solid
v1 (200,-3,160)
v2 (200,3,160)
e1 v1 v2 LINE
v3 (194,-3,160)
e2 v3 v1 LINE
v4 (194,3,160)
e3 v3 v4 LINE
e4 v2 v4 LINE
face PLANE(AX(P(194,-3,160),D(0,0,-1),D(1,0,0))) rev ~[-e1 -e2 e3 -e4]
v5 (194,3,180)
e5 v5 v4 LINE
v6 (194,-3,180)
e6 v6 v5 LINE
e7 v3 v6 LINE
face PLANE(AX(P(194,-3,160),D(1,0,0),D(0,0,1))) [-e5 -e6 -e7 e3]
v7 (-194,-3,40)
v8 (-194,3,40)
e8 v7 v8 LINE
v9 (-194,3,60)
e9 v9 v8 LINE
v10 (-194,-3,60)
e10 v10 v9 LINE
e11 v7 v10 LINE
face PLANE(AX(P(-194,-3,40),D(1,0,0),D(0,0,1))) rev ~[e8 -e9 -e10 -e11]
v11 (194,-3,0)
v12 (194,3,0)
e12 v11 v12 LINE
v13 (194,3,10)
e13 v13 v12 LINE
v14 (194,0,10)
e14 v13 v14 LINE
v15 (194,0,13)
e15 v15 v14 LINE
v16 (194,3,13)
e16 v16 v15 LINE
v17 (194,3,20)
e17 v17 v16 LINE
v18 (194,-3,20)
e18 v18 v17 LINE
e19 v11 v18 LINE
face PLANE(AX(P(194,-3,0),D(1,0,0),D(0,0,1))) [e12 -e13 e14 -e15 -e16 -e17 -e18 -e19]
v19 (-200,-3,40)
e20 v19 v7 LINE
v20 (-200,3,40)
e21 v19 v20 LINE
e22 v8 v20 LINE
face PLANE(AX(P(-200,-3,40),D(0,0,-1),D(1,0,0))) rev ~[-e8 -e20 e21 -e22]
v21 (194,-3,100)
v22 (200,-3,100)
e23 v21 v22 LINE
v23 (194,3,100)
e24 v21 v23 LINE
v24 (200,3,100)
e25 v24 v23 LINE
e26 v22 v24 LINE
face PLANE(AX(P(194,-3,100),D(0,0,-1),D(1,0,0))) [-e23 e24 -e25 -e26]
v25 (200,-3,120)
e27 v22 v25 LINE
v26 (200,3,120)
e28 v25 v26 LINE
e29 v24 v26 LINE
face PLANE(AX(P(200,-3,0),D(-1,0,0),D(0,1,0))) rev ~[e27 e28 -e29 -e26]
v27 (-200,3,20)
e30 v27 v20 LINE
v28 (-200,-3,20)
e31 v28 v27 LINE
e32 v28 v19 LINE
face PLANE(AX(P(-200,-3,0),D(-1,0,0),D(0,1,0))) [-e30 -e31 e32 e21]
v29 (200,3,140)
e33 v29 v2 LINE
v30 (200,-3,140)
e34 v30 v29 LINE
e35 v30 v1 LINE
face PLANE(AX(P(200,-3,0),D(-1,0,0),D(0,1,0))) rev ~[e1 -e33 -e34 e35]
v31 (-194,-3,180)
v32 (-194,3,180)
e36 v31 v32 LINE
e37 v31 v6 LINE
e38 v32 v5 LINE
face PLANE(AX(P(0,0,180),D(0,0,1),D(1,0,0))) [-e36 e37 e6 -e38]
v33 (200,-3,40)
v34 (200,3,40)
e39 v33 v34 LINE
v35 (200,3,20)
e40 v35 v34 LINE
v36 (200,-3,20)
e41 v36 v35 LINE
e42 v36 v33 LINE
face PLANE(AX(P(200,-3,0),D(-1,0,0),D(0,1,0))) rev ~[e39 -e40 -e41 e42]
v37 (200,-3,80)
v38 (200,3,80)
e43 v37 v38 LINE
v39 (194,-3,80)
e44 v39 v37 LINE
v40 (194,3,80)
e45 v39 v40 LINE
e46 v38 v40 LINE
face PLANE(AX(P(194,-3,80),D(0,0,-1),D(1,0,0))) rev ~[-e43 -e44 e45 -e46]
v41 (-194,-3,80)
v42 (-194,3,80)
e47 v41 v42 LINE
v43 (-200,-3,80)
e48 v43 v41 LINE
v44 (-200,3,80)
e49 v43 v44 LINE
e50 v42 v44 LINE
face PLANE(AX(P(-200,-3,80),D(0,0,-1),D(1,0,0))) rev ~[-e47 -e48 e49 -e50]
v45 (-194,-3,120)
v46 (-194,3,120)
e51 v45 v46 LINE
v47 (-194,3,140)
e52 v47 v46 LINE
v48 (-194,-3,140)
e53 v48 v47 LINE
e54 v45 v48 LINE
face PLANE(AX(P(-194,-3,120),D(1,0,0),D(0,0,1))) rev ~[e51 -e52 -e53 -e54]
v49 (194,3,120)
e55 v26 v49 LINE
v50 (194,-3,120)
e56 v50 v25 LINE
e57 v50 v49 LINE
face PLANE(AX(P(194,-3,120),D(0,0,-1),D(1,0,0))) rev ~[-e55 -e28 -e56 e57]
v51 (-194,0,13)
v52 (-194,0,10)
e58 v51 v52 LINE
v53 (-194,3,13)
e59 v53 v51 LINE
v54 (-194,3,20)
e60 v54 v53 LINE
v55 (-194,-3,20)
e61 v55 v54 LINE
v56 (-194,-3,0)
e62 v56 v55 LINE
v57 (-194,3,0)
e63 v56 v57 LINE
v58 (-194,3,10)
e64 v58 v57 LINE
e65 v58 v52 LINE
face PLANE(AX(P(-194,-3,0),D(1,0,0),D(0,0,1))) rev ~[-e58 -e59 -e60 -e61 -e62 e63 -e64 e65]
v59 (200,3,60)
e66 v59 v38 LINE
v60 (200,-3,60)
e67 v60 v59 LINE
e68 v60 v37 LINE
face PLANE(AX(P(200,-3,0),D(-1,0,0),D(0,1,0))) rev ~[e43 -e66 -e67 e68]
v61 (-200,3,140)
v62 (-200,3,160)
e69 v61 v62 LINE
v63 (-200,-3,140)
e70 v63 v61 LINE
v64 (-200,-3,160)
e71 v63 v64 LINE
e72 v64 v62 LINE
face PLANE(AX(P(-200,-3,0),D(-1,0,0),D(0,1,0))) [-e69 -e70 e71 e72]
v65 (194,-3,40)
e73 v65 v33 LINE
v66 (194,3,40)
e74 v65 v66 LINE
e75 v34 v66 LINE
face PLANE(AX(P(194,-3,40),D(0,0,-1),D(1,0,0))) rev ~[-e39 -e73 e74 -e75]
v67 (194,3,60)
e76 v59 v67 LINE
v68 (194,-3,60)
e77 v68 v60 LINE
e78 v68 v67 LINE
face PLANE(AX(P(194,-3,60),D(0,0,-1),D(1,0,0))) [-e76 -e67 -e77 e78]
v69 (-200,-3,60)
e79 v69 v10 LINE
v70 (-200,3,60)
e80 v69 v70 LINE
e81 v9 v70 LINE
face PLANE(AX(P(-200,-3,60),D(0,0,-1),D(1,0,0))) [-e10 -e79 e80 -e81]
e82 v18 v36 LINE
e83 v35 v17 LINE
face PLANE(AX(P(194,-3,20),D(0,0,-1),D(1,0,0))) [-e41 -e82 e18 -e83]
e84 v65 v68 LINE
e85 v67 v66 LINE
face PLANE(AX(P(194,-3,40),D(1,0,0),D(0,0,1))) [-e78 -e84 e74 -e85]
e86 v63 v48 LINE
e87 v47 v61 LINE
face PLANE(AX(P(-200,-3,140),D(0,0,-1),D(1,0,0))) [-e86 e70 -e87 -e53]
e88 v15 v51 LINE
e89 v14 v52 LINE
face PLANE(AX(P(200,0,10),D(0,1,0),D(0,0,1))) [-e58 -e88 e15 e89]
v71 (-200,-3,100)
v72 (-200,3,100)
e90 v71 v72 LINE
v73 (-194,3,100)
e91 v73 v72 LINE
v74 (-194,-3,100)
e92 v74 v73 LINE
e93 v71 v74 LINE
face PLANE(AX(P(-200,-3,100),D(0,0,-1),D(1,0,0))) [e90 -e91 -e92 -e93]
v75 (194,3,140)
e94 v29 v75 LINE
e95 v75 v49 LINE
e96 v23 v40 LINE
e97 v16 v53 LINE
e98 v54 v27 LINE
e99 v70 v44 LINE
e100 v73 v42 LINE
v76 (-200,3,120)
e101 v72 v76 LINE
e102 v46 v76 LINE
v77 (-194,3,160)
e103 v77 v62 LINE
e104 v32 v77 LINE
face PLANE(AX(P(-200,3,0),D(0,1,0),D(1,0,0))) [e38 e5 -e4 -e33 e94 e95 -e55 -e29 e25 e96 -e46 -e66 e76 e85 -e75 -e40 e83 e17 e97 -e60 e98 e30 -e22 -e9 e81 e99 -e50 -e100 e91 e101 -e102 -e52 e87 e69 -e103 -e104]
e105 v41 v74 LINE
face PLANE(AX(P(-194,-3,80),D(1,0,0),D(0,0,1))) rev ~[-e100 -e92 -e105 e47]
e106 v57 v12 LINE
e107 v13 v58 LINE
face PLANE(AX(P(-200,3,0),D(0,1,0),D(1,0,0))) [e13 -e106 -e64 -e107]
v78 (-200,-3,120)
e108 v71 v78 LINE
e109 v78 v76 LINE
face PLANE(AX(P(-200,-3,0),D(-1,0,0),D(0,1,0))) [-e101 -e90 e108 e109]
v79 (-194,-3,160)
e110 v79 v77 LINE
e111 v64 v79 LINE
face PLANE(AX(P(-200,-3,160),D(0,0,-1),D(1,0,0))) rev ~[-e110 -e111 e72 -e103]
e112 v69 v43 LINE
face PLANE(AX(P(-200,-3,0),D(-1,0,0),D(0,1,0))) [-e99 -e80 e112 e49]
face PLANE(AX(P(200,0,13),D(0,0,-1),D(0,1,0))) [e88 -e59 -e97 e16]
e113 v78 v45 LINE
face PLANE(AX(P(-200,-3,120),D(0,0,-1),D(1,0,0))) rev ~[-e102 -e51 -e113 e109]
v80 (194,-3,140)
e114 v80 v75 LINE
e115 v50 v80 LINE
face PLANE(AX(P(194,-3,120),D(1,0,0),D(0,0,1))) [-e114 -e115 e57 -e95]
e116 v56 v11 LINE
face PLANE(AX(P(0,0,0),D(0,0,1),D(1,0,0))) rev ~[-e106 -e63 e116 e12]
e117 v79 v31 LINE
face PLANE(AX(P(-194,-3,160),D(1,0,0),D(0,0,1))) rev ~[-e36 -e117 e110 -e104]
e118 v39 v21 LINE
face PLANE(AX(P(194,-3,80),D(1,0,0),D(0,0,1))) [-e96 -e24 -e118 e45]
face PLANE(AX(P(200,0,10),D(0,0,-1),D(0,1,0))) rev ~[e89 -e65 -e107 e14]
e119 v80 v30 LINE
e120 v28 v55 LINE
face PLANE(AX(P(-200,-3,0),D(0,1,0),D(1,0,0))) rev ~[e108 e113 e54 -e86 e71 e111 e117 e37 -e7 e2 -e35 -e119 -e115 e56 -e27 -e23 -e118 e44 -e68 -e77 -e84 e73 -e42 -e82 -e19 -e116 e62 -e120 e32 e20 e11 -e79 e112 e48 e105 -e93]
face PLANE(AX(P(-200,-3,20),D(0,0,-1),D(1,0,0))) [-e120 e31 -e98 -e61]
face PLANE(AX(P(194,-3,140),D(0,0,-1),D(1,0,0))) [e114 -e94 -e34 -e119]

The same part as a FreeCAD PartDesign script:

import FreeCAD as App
import Part
import Sketcher

V = App.Vector

doc = App.newDocument("Part")
params = doc.addObject("Spreadsheet::Sheet", "Params")
for row, (alias, value) in enumerate([
    ("sketch1_width", "400 mm"),
    ("sketch1_height", "6 mm"),
    ("pad1_length", "180 mm"),
    ("sketch2_width", "3 mm"),
    ("sketch3_width", "6 mm"),
    ("sketch3_height", "20 mm"),
], start=1):
    params.set(f"A{row}", alias)
    params.set(f"B{row}", "=" + value)
    params.setAlias(f"B{row}", alias)

body = doc.addObject("PartDesign::Body", "Body")

# Sketch on XY plane
sketch1 = doc.addObject("Sketcher::SketchObject", "Sketch")
body.addObject(sketch1)
sketch1.AttachmentSupport = (doc.XY_Plane, [""])
sketch1.MapMode = "FlatFace"
sketch1.addGeometry(Part.LineSegment(V(-200, 3, 0), V(-200, -3, 0)), False)
sketch1.addGeometry(Part.LineSegment(V(-200, -3, 0), V(200, -3, 0)), False)
sketch1.addGeometry(Part.LineSegment(V(200, -3, 0), V(200, 3, 0)), False)
sketch1.addGeometry(Part.LineSegment(V(200, 3, 0), V(-200, 3, 0)), False)
sketch1.addConstraint(Sketcher.Constraint("Coincident", 0, 2, 1, 1))
sketch1.addConstraint(Sketcher.Constraint("Coincident", 1, 2, 2, 1))
sketch1.addConstraint(Sketcher.Constraint("Coincident", 2, 2, 3, 1))
sketch1.addConstraint(Sketcher.Constraint("Coincident", 3, 2, 0, 1))
sketch1.addConstraint(Sketcher.Constraint("Vertical", 0))
sketch1.addConstraint(Sketcher.Constraint("Horizontal", 1))
sketch1.addConstraint(Sketcher.Constraint("Vertical", 2))
sketch1.addConstraint(Sketcher.Constraint("Horizontal", 3))
sketch1.addConstraint(Sketcher.Constraint("Symmetric", 0, 2, 2, 2, -1, 1))
sketch1.addConstraint(Sketcher.Constraint("DistanceX", 1, 1, 1, 2, 400.0))
sketch1.addConstraint(Sketcher.Constraint("DistanceY", 0, 2, 0, 1, 6.0))
sketch1.setExpression("Constraints[9]", "Params.sketch1_width")
sketch1.setExpression("Constraints[10]", "Params.sketch1_height")
pad1 = doc.addObject("PartDesign::Pad", "Pad")
body.addObject(pad1)
pad1.Profile = sketch1
pad1.setExpression("Length", "Params.pad1_length")

# Sketch on YZ plane
sketch2 = doc.addObject("Sketcher::SketchObject", "Sketch001")
body.addObject(sketch2)
sketch2.AttachmentSupport = (doc.YZ_Plane, [""])
sketch2.MapMode = "FlatFace"
sketch2.AttachmentOffset = App.Placement(V(0, 0, 200), App.Rotation())
sketch2.addGeometry(Part.LineSegment(V(0, 13, 0), V(0, 10, 0)), False)
sketch2.addGeometry(Part.LineSegment(V(0, 10, 0), V(3, 10, 0)), False)
sketch2.addGeometry(Part.LineSegment(V(3, 10, 0), V(3, 13, 0)), False)
sketch2.addGeometry(Part.LineSegment(V(3, 13, 0), V(0, 13, 0)), False)
sketch2.addConstraint(Sketcher.Constraint("Coincident", 0, 2, 1, 1))
sketch2.addConstraint(Sketcher.Constraint("Coincident", 1, 2, 2, 1))
sketch2.addConstraint(Sketcher.Constraint("Coincident", 2, 2, 3, 1))
sketch2.addConstraint(Sketcher.Constraint("Coincident", 3, 2, 0, 1))
sketch2.addConstraint(Sketcher.Constraint("Vertical", 0))
sketch2.addConstraint(Sketcher.Constraint("Horizontal", 1))
sketch2.addConstraint(Sketcher.Constraint("Vertical", 2))
sketch2.addConstraint(Sketcher.Constraint("Horizontal", 3))
sketch2.addConstraint(Sketcher.Constraint("PointOnObject", 0, 2, -2))
sketch2.addConstraint(Sketcher.Constraint("Equal", 3, 0))
sketch2.addConstraint(Sketcher.Constraint("DistanceX", 1, 1, 1, 2, 3.0))
sketch2.addConstraint(Sketcher.Constraint("DistanceY", -1, 1, 0, 2, 10.0))
sketch2.setExpression("Constraints[10]", "Params.sketch2_width")
pocket1 = doc.addObject("PartDesign::Pocket", "Pocket")
body.addObject(pocket1)
pocket1.Profile = sketch2
pocket1.Type = "ThroughAll"

# Sketch on XZ plane
sketch3 = doc.addObject("Sketcher::SketchObject", "Sketch002")
body.addObject(sketch3)
sketch3.AttachmentSupport = (doc.XZ_Plane, [""])
sketch3.MapMode = "FlatFace"
sketch3.AttachmentOffset = App.Placement(V(0, 0, 3), App.Rotation())
sketch3.addGeometry(Part.LineSegment(V(-200, 180, 0), V(-200, 160, 0)), False)
sketch3.addGeometry(Part.LineSegment(V(-200, 160, 0), V(-194, 160, 0)), False)
sketch3.addGeometry(Part.LineSegment(V(-194, 160, 0), V(-194, 180, 0)), False)
sketch3.addGeometry(Part.LineSegment(V(-194, 180, 0), V(-200, 180, 0)), False)
sketch3.addGeometry(Part.LineSegment(V(-200, 140, 0), V(-200, 120, 0)), False)
sketch3.addGeometry(Part.LineSegment(V(-200, 120, 0), V(-194, 120, 0)), False)
sketch3.addGeometry(Part.LineSegment(V(-194, 120, 0), V(-194, 140, 0)), False)
sketch3.addGeometry(Part.LineSegment(V(-194, 140, 0), V(-200, 140, 0)), False)
sketch3.addGeometry(Part.LineSegment(V(-200, 100, 0), V(-200, 80, 0)), False)
sketch3.addGeometry(Part.LineSegment(V(-200, 80, 0), V(-194, 80, 0)), False)
sketch3.addGeometry(Part.LineSegment(V(-194, 80, 0), V(-194, 100, 0)), False)
sketch3.addGeometry(Part.LineSegment(V(-194, 100, 0), V(-200, 100, 0)), False)
sketch3.addGeometry(Part.LineSegment(V(-200, 60, 0), V(-200, 40, 0)), False)
sketch3.addGeometry(Part.LineSegment(V(-200, 40, 0), V(-194, 40, 0)), False)
sketch3.addGeometry(Part.LineSegment(V(-194, 40, 0), V(-194, 60, 0)), False)
sketch3.addGeometry(Part.LineSegment(V(-194, 60, 0), V(-200, 60, 0)), False)
sketch3.addGeometry(Part.LineSegment(V(-200, 20, 0), V(-200, 0, 0)), False)
sketch3.addGeometry(Part.LineSegment(V(-200, 0, 0), V(-194, 0, 0)), False)
sketch3.addGeometry(Part.LineSegment(V(-194, 0, 0), V(-194, 20, 0)), False)
sketch3.addGeometry(Part.LineSegment(V(-194, 20, 0), V(-200, 20, 0)), False)
sketch3.addGeometry(Part.LineSegment(V(194, 20, 0), V(194, 0, 0)), False)
sketch3.addGeometry(Part.LineSegment(V(194, 0, 0), V(200, 0, 0)), False)
sketch3.addGeometry(Part.LineSegment(V(200, 0, 0), V(200, 20, 0)), False)
sketch3.addGeometry(Part.LineSegment(V(200, 20, 0), V(194, 20, 0)), False)
sketch3.addGeometry(Part.LineSegment(V(194, 60, 0), V(194, 40, 0)), False)
sketch3.addGeometry(Part.LineSegment(V(194, 40, 0), V(200, 40, 0)), False)
sketch3.addGeometry(Part.LineSegment(V(200, 40, 0), V(200, 60, 0)), False)
sketch3.addGeometry(Part.LineSegment(V(200, 60, 0), V(194, 60, 0)), False)
sketch3.addGeometry(Part.LineSegment(V(194, 100, 0), V(194, 80, 0)), False)
sketch3.addGeometry(Part.LineSegment(V(194, 80, 0), V(200, 80, 0)), False)
sketch3.addGeometry(Part.LineSegment(V(200, 80, 0), V(200, 100, 0)), False)
sketch3.addGeometry(Part.LineSegment(V(200, 100, 0), V(194, 100, 0)), False)
sketch3.addGeometry(Part.LineSegment(V(194, 140, 0), V(194, 120, 0)), False)
sketch3.addGeometry(Part.LineSegment(V(194, 120, 0), V(200, 120, 0)), False)
sketch3.addGeometry(Part.LineSegment(V(200, 120, 0), V(200, 140, 0)), False)
sketch3.addGeometry(Part.LineSegment(V(200, 140, 0), V(194, 140, 0)), False)
sketch3.addGeometry(Part.LineSegment(V(194, 180, 0), V(194, 160, 0)), False)
sketch3.addGeometry(Part.LineSegment(V(194, 160, 0), V(200, 160, 0)), False)
sketch3.addGeometry(Part.LineSegment(V(200, 160, 0), V(200, 180, 0)), False)
sketch3.addGeometry(Part.LineSegment(V(200, 180, 0), V(194, 180, 0)), False)
sketch3.addConstraint(Sketcher.Constraint("Coincident", 0, 2, 1, 1))
sketch3.addConstraint(Sketcher.Constraint("Coincident", 1, 2, 2, 1))
sketch3.addConstraint(Sketcher.Constraint("Coincident", 2, 2, 3, 1))
sketch3.addConstraint(Sketcher.Constraint("Coincident", 3, 2, 0, 1))
sketch3.addConstraint(Sketcher.Constraint("Coincident", 4, 2, 5, 1))
sketch3.addConstraint(Sketcher.Constraint("Coincident", 5, 2, 6, 1))
sketch3.addConstraint(Sketcher.Constraint("Coincident", 6, 2, 7, 1))
sketch3.addConstraint(Sketcher.Constraint("Coincident", 7, 2, 4, 1))
sketch3.addConstraint(Sketcher.Constraint("Coincident", 8, 2, 9, 1))
sketch3.addConstraint(Sketcher.Constraint("Coincident", 9, 2, 10, 1))
sketch3.addConstraint(Sketcher.Constraint("Coincident", 10, 2, 11, 1))
sketch3.addConstraint(Sketcher.Constraint("Coincident", 11, 2, 8, 1))
sketch3.addConstraint(Sketcher.Constraint("Coincident", 12, 2, 13, 1))
sketch3.addConstraint(Sketcher.Constraint("Coincident", 13, 2, 14, 1))
sketch3.addConstraint(Sketcher.Constraint("Coincident", 14, 2, 15, 1))
sketch3.addConstraint(Sketcher.Constraint("Coincident", 15, 2, 12, 1))
sketch3.addConstraint(Sketcher.Constraint("Coincident", 16, 2, 17, 1))
sketch3.addConstraint(Sketcher.Constraint("Coincident", 17, 2, 18, 1))
sketch3.addConstraint(Sketcher.Constraint("Coincident", 18, 2, 19, 1))
sketch3.addConstraint(Sketcher.Constraint("Coincident", 19, 2, 16, 1))
sketch3.addConstraint(Sketcher.Constraint("Coincident", 20, 2, 21, 1))
sketch3.addConstraint(Sketcher.Constraint("Coincident", 21, 2, 22, 1))
sketch3.addConstraint(Sketcher.Constraint("Coincident", 22, 2, 23, 1))
sketch3.addConstraint(Sketcher.Constraint("Coincident", 23, 2, 20, 1))
sketch3.addConstraint(Sketcher.Constraint("Coincident", 24, 2, 25, 1))
sketch3.addConstraint(Sketcher.Constraint("Coincident", 25, 2, 26, 1))
sketch3.addConstraint(Sketcher.Constraint("Coincident", 26, 2, 27, 1))
sketch3.addConstraint(Sketcher.Constraint("Coincident", 27, 2, 24, 1))
sketch3.addConstraint(Sketcher.Constraint("Coincident", 28, 2, 29, 1))
sketch3.addConstraint(Sketcher.Constraint("Coincident", 29, 2, 30, 1))
sketch3.addConstraint(Sketcher.Constraint("Coincident", 30, 2, 31, 1))
sketch3.addConstraint(Sketcher.Constraint("Coincident", 31, 2, 28, 1))
sketch3.addConstraint(Sketcher.Constraint("Coincident", 32, 2, 33, 1))
sketch3.addConstraint(Sketcher.Constraint("Coincident", 33, 2, 34, 1))
sketch3.addConstraint(Sketcher.Constraint("Coincident", 34, 2, 35, 1))
sketch3.addConstraint(Sketcher.Constraint("Coincident", 35, 2, 32, 1))
sketch3.addConstraint(Sketcher.Constraint("Coincident", 36, 2, 37, 1))
sketch3.addConstraint(Sketcher.Constraint("Coincident", 37, 2, 38, 1))
sketch3.addConstraint(Sketcher.Constraint("Coincident", 38, 2, 39, 1))
sketch3.addConstraint(Sketcher.Constraint("Coincident", 39, 2, 36, 1))
sketch3.addConstraint(Sketcher.Constraint("Vertical", 0))
sketch3.addConstraint(Sketcher.Constraint("Horizontal", 1))
sketch3.addConstraint(Sketcher.Constraint("Vertical", 2))
sketch3.addConstraint(Sketcher.Constraint("Horizontal", 3))
sketch3.addConstraint(Sketcher.Constraint("Vertical", 4))
sketch3.addConstraint(Sketcher.Constraint("Horizontal", 5))
sketch3.addConstraint(Sketcher.Constraint("Vertical", 6))
sketch3.addConstraint(Sketcher.Constraint("Horizontal", 7))
sketch3.addConstraint(Sketcher.Constraint("Vertical", 8))
sketch3.addConstraint(Sketcher.Constraint("Horizontal", 9))
sketch3.addConstraint(Sketcher.Constraint("Vertical", 10))
sketch3.addConstraint(Sketcher.Constraint("Horizontal", 11))
sketch3.addConstraint(Sketcher.Constraint("Vertical", 12))
sketch3.addConstraint(Sketcher.Constraint("Horizontal", 13))
sketch3.addConstraint(Sketcher.Constraint("Vertical", 14))
sketch3.addConstraint(Sketcher.Constraint("Horizontal", 15))
sketch3.addConstraint(Sketcher.Constraint("Vertical", 16))
sketch3.addConstraint(Sketcher.Constraint("Horizontal", 17))
sketch3.addConstraint(Sketcher.Constraint("Vertical", 18))
sketch3.addConstraint(Sketcher.Constraint("Horizontal", 19))
sketch3.addConstraint(Sketcher.Constraint("Vertical", 20))
sketch3.addConstraint(Sketcher.Constraint("Horizontal", 21))
sketch3.addConstraint(Sketcher.Constraint("Vertical", 22))
sketch3.addConstraint(Sketcher.Constraint("Horizontal", 23))
sketch3.addConstraint(Sketcher.Constraint("Vertical", 24))
sketch3.addConstraint(Sketcher.Constraint("Horizontal", 25))
sketch3.addConstraint(Sketcher.Constraint("Vertical", 26))
sketch3.addConstraint(Sketcher.Constraint("Horizontal", 27))
sketch3.addConstraint(Sketcher.Constraint("Vertical", 28))
sketch3.addConstraint(Sketcher.Constraint("Horizontal", 29))
sketch3.addConstraint(Sketcher.Constraint("Vertical", 30))
sketch3.addConstraint(Sketcher.Constraint("Horizontal", 31))
sketch3.addConstraint(Sketcher.Constraint("Vertical", 32))
sketch3.addConstraint(Sketcher.Constraint("Horizontal", 33))
sketch3.addConstraint(Sketcher.Constraint("Vertical", 34))
sketch3.addConstraint(Sketcher.Constraint("Horizontal", 35))
sketch3.addConstraint(Sketcher.Constraint("Vertical", 36))
sketch3.addConstraint(Sketcher.Constraint("Horizontal", 37))
sketch3.addConstraint(Sketcher.Constraint("Vertical", 38))
sketch3.addConstraint(Sketcher.Constraint("Horizontal", 39))
sketch3.addConstraint(Sketcher.Constraint("Symmetric", 17, 2, 20, 2, -1, 1))
sketch3.addConstraint(Sketcher.Constraint("Symmetric", 16, 2, 21, 2, -2))
sketch3.addConstraint(Sketcher.Constraint("Symmetric", 13, 2, 24, 2, -2))
sketch3.addConstraint(Sketcher.Constraint("Symmetric", 15, 2, 26, 2, -2))
sketch3.addConstraint(Sketcher.Constraint("Symmetric", 9, 2, 28, 2, -2))
sketch3.addConstraint(Sketcher.Constraint("Symmetric", 11, 2, 30, 2, -2))
sketch3.addConstraint(Sketcher.Constraint("Symmetric", 5, 2, 32, 2, -2))
sketch3.addConstraint(Sketcher.Constraint("Symmetric", 7, 2, 34, 2, -2))
sketch3.addConstraint(Sketcher.Constraint("Symmetric", 1, 2, 36, 2, -2))
sketch3.addConstraint(Sketcher.Constraint("Symmetric", 3, 2, 38, 2, -2))
sketch3.addConstraint(Sketcher.Constraint("Horizontal", 19, 2, 22, 2))
sketch3.addConstraint(Sketcher.Constraint("Vertical", 3, 2, 4, 2))
sketch3.addConstraint(Sketcher.Constraint("Vertical", 2, 2, 5, 2))
sketch3.addConstraint(Sketcher.Constraint("Vertical", 7, 2, 8, 2))
sketch3.addConstraint(Sketcher.Constraint("Vertical", 6, 2, 9, 2))
sketch3.addConstraint(Sketcher.Constraint("Vertical", 11, 2, 12, 2))
sketch3.addConstraint(Sketcher.Constraint("Vertical", 10, 2, 13, 2))
sketch3.addConstraint(Sketcher.Constraint("Vertical", 15, 2, 16, 2))
sketch3.addConstraint(Sketcher.Constraint("Vertical", 14, 2, 17, 2))
sketch3.addConstraint(Sketcher.Constraint("Equal", 2, 4))
sketch3.addConstraint(Sketcher.Constraint("Equal", 6, 8))
sketch3.addConstraint(Sketcher.Constraint("Equal", 10, 12))
sketch3.addConstraint(Sketcher.Constraint("Equal", 14, 16))
sketch3.addConstraint(Sketcher.Constraint("DistanceX", 1, 1, 1, 2, 6.0))
sketch3.addConstraint(Sketcher.Constraint("DistanceY", 0, 2, 0, 1, 20.0))
sketch3.addConstraint(Sketcher.Constraint("DistanceX", 0, 2, -1, 1, 200.0))
sketch3.addConstraint(Sketcher.Constraint("DistanceY", -1, 1, 0, 2, 160.0))
sketch3.addConstraint(Sketcher.Constraint("DistanceY", -1, 1, 4, 2, 120.0))
sketch3.addConstraint(Sketcher.Constraint("DistanceY", -1, 1, 8, 2, 80.0))
sketch3.addConstraint(Sketcher.Constraint("DistanceY", -1, 1, 12, 2, 40.0))
sketch3.setExpression("Constraints[103]", "Params.sketch3_width")
sketch3.setExpression("Constraints[104]", "Params.sketch3_height")
pocket2 = doc.addObject("PartDesign::Pocket", "Pocket001")
body.addObject(pocket2)
pocket2.Profile = sketch3
pocket2.Type = "ThroughAll"

doc.recompute()
